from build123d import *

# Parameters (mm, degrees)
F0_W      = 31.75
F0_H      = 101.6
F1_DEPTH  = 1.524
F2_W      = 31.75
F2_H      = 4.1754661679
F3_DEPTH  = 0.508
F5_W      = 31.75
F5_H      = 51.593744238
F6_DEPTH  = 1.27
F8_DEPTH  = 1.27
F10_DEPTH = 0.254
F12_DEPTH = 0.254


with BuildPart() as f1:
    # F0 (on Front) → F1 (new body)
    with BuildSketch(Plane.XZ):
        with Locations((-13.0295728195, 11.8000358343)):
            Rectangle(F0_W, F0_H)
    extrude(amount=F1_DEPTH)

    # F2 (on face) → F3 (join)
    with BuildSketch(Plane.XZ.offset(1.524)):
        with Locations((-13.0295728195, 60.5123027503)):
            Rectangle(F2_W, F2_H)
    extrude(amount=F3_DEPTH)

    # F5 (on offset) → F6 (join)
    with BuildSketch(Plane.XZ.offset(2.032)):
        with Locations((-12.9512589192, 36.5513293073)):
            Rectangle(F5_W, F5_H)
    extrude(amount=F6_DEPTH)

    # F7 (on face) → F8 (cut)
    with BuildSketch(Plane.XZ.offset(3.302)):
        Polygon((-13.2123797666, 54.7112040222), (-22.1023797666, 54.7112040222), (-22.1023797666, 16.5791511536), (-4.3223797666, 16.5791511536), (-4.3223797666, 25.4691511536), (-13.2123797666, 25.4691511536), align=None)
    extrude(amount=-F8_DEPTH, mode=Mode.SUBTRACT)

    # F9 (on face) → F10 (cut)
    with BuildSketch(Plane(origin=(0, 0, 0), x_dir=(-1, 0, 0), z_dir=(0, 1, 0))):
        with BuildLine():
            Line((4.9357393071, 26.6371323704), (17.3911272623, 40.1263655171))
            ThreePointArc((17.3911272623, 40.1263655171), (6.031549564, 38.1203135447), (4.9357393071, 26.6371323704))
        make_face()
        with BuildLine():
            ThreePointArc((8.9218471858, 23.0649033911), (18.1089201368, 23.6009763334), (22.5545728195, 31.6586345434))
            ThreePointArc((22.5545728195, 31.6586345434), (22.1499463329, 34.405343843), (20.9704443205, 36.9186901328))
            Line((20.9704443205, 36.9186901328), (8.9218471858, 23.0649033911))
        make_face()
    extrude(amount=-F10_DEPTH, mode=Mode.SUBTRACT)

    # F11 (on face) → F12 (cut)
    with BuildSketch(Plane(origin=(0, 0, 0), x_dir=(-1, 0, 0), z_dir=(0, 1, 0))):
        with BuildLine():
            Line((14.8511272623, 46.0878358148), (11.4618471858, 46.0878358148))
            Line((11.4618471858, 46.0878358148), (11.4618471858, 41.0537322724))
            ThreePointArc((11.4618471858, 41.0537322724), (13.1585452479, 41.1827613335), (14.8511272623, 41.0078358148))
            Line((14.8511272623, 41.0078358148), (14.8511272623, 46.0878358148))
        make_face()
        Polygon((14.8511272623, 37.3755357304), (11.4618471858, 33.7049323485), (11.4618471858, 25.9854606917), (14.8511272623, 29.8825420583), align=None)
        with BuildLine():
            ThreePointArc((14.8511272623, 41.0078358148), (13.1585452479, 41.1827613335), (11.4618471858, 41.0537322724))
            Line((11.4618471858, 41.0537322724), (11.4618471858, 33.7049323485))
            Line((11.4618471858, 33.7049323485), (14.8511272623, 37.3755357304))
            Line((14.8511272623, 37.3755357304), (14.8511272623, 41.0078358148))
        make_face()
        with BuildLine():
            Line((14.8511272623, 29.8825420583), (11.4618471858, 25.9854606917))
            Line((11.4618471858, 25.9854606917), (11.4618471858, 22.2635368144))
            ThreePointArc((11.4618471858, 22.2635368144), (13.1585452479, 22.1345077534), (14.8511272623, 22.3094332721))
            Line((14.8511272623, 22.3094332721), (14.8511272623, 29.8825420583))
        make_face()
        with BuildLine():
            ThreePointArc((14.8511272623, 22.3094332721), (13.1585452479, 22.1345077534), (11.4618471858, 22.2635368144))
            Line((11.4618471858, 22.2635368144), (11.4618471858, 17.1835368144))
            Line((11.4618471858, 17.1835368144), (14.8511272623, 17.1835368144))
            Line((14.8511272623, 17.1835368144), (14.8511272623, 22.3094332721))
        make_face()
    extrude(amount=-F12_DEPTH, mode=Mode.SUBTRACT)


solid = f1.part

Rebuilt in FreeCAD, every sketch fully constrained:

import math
import FreeCAD as App
import Part
import Sketcher
Q = App.Units.Quantity


def add_polygon(sketch, points):
    """Adds a closed chain of lines whose ends are joined by coincident constraints."""
    first, n = sketch.GeometryCount, len(points)
    for a, b in zip(points, points[1:] + points[:1]):
        sketch.addGeometry(Part.LineSegment(App.Vector(*a, 0), App.Vector(*b, 0)), False)
    for i in range(n):
        sketch.addConstraint(Sketcher.Constraint("Coincident", first + i, 2, first + (i + 1) % n, 1))

doc = App.newDocument("Part")
body = doc.addObject("PartDesign::Body", "Body")

sketch1 = body.newObject("Sketcher::SketchObject", "Sketch")
sketch1.AttachmentSupport = (doc.getObject("XZ_Plane"), [""])
sketch1.MapMode = "FlatFace"
add_polygon(sketch1, [(-29, 63), (-29, -39), (3, -39), (3, 63)])
sketch1.addConstraint([
    Sketcher.Constraint("Vertical", 0),
    Sketcher.Constraint("Horizontal", 1),
    Sketcher.Constraint("Vertical", 2),
    Sketcher.Constraint("Horizontal", 3),
    Sketcher.Constraint("DistanceY", 0, 2, 0, 1, Q("4 in")),
    Sketcher.Constraint("DistanceX", 1, 1, 1, 2, Q("1.25 in")),
    Sketcher.Constraint("DistanceX", 0, 2, -1, 1, 28.904573),
    Sketcher.Constraint("DistanceY", 0, 2, -1, 1, 38.999964),
])
pad1 = body.newObject("PartDesign::Pad", "Pad")
pad1.Profile = sketch1
pad1.Length = Q("0.06 in")

sketch2 = body.newObject("Sketcher::SketchObject", "Sketch001")
sketch2.AttachmentSupport = (doc.getObject("XZ_Plane"), [""])
sketch2.MapMode = "FlatFace"
sketch2.AttachmentOffset = App.Placement(App.Vector(0, 0, 0.06 * 25.4), App.Rotation())
add_polygon(sketch2, [(-28.9, 62.6), (-28.9, 58.4), (2.8, 58.4), (2.8, 62.6)])
sketch2.addConstraint([
    Sketcher.Constraint("Vertical", 0),
    Sketcher.Constraint("Horizontal", 1),
    Sketcher.Constraint("Vertical", 2),
    Sketcher.Constraint("Horizontal", 3),
    Sketcher.Constraint("DistanceX", 1, 1, 1, 2, Q("1.25 in")),
    Sketcher.Constraint("DistanceY", 0, 2, 0, 1, 4.175466),
    Sketcher.Constraint("DistanceY", -1, 1, 0, 2, 58.42457),
    Sketcher.Constraint("DistanceX", 0, 2, -1, 1, 28.904573),
])
pad2 = body.newObject("PartDesign::Pad", "Pad001")
pad2.Profile = sketch2
pad2.Length = Q("0.02 in")

sketch3 = body.newObject("Sketcher::SketchObject", "Sketch002")
sketch3.AttachmentSupport = (doc.getObject("XZ_Plane"), [""])
sketch3.MapMode = "FlatFace"
sketch3.AttachmentOffset = App.Placement(App.Vector(0, 0, 0.08 * 25.4), App.Rotation())
add_polygon(sketch3, [(-29, 62), (-29, 11), (3, 11), (3, 62)])
sketch3.addConstraint([
    Sketcher.Constraint("Vertical", 0),
    Sketcher.Constraint("Horizontal", 1),
    Sketcher.Constraint("Vertical", 2),
    Sketcher.Constraint("Horizontal", 3),
    Sketcher.Constraint("DistanceX", 1, 1, 1, 2, Q("1.25 in")),
    Sketcher.Constraint("DistanceY", -1, 1, 2, 2, 62.348201),
    Sketcher.Constraint("DistanceY", 0, 2, 0, 1, 51.593744),
    Sketcher.Constraint("DistanceX", 0, 2, -1, 1, 28.826259),
])
pad3 = body.newObject("PartDesign::Pad", "Pad002")
pad3.Profile = sketch3
pad3.Length = Q("0.05 in")

sketch4 = body.newObject("Sketcher::SketchObject", "Sketch003")
sketch4.AttachmentSupport = (doc.getObject("XZ_Plane"), [""])
sketch4.MapMode = "FlatFace"
sketch4.AttachmentOffset = App.Placement(App.Vector(0, 0, 0.13 * 25.4), App.Rotation())
add_polygon(sketch4, [(-13, 55), (-22, 55), (-22, 17), (-4, 17), (-4, 25), (-13, 25)])
sketch4.addConstraint([
    Sketcher.Constraint("Horizontal", 0),
    Sketcher.Constraint("Vertical", 1),
    Sketcher.Constraint("Horizontal", 2),
    Sketcher.Constraint("Vertical", 3),
    Sketcher.Constraint("Horizontal", 4),
    Sketcher.Constraint("Vertical", 5),
    Sketcher.Constraint("Equal", 0, 4),
    Sketcher.Constraint("Equal", 4, 3),
    Sketcher.Constraint("DistanceX", 2, 1, 2, 2, Q("0.7 in")),
    Sketcher.Constraint("DistanceY", 1, 2, 1, 1, 38.132053),
    Sketcher.Constraint("DistanceX", 0, 2, -1, 1, 22.10238),
    Sketcher.Constraint("DistanceY", -1, 1, 1, 2, 16.579151),
])
pocket1 = body.newObject("PartDesign::Pocket", "Pocket")
pocket1.Profile = sketch4
pocket1.Length = Q("0.05 in")

sketch5 = body.newObject("Sketcher::SketchObject", "Sketch004")
sketch5.AttachmentSupport = (doc.getObject("XZ_Plane"), [""])
sketch5.MapMode = "FlatFace"
sketch5.addGeometry([
    Part.LineSegment(App.Vector(-5, 27, 0), App.Vector(-17, 40, 0)),
    Part.ArcOfCircle(Part.Circle(App.Vector(-13, 32, 0), App.Vector(0, 0, 1), 10), math.radians(-32), math.radians(117)),
    Part.ArcOfCircle(Part.Circle(App.Vector(-13, 32, 0), App.Vector(0, 0, 1), 10), math.radians(180), math.radians(296)),
    Part.ArcOfCircle(Part.Circle(App.Vector(-13, 32, 0), App.Vector(0, 0, 1), 10), math.radians(146), math.radians(180)),
    Part.LineSegment(App.Vector(-21, 37, 0), App.Vector(-9, 23, 0)),
], False)
sketch5.addConstraint([
    Sketcher.Constraint("Coincident", 0, 1, 1, 1),
    Sketcher.Constraint("Coincident", 1, 2, 0, 2),
    Sketcher.Constraint("Tangent", 2, 1, 3, 2),
    Sketcher.Constraint("Coincident", 3, 1, 4, 1),
    Sketcher.Constraint("Coincident", 4, 2, 2, 2),
    Sketcher.Constraint("Coincident", 2, 3, 1, 3),
    Sketcher.Constraint("Equal", 1, 2),
    Sketcher.Constraint("Equal", 2, 3),
    Sketcher.Constraint("Horizontal", 3, 3, 2, 1),
    Sketcher.Constraint("Equal", 0, 4),
    Sketcher.Constraint("Radius", 1, Q("0.375 in")),
    Sketcher.Constraint("DistanceX", 0, 1, -1, 1, 4.935739),
    Sketcher.Constraint("DistanceY", -1, 1, 3, 1, 36.91869),
    Sketcher.Constraint("DistanceY", 3, 3, 1, 2, 8.467731),
    Sketcher.Constraint("DistanceX", 2, 1, 3, 1, 1.584128),
    Sketcher.Constraint("DistanceY", 4, 2, 0, 1, 3.572229),
])
pocket2 = body.newObject("PartDesign::Pocket", "Pocket001")
pocket2.Profile = sketch5
pocket2.Length = Q("0.01 in")
pocket2.Reversed = True

sketch6 = body.newObject("Sketcher::SketchObject", "Sketch005")
sketch6.AttachmentSupport = (doc.getObject("XZ_Plane"), [""])
sketch6.MapMode = "FlatFace"
add_polygon(sketch6, [(-14.9, 46.1), (-11.5, 46.1), (-11.5, 17.2), (-14.9, 17.2)])
sketch6.addConstraint([
    Sketcher.Constraint("Horizontal", 0),
    Sketcher.Constraint("Vertical", 1),
    Sketcher.Constraint("Horizontal", 2),
    Sketcher.Constraint("Vertical", 3),
    Sketcher.Constraint("DistanceY", 1, 2, 1, 1, 28.904299),
    Sketcher.Constraint("DistanceX", 0, 1, 0, 2, 3.38928),
    Sketcher.Constraint("DistanceX", 0, 2, -1, 1, 11.461847),
    Sketcher.Constraint("DistanceY", -1, 1, 0, 2, 46.087836),
])
pocket3 = body.newObject("PartDesign::Pocket", "Pocket002")
pocket3.Profile = sketch6
pocket3.Length = Q("0.01 in")
pocket3.Reversed = True

doc.recompute()
